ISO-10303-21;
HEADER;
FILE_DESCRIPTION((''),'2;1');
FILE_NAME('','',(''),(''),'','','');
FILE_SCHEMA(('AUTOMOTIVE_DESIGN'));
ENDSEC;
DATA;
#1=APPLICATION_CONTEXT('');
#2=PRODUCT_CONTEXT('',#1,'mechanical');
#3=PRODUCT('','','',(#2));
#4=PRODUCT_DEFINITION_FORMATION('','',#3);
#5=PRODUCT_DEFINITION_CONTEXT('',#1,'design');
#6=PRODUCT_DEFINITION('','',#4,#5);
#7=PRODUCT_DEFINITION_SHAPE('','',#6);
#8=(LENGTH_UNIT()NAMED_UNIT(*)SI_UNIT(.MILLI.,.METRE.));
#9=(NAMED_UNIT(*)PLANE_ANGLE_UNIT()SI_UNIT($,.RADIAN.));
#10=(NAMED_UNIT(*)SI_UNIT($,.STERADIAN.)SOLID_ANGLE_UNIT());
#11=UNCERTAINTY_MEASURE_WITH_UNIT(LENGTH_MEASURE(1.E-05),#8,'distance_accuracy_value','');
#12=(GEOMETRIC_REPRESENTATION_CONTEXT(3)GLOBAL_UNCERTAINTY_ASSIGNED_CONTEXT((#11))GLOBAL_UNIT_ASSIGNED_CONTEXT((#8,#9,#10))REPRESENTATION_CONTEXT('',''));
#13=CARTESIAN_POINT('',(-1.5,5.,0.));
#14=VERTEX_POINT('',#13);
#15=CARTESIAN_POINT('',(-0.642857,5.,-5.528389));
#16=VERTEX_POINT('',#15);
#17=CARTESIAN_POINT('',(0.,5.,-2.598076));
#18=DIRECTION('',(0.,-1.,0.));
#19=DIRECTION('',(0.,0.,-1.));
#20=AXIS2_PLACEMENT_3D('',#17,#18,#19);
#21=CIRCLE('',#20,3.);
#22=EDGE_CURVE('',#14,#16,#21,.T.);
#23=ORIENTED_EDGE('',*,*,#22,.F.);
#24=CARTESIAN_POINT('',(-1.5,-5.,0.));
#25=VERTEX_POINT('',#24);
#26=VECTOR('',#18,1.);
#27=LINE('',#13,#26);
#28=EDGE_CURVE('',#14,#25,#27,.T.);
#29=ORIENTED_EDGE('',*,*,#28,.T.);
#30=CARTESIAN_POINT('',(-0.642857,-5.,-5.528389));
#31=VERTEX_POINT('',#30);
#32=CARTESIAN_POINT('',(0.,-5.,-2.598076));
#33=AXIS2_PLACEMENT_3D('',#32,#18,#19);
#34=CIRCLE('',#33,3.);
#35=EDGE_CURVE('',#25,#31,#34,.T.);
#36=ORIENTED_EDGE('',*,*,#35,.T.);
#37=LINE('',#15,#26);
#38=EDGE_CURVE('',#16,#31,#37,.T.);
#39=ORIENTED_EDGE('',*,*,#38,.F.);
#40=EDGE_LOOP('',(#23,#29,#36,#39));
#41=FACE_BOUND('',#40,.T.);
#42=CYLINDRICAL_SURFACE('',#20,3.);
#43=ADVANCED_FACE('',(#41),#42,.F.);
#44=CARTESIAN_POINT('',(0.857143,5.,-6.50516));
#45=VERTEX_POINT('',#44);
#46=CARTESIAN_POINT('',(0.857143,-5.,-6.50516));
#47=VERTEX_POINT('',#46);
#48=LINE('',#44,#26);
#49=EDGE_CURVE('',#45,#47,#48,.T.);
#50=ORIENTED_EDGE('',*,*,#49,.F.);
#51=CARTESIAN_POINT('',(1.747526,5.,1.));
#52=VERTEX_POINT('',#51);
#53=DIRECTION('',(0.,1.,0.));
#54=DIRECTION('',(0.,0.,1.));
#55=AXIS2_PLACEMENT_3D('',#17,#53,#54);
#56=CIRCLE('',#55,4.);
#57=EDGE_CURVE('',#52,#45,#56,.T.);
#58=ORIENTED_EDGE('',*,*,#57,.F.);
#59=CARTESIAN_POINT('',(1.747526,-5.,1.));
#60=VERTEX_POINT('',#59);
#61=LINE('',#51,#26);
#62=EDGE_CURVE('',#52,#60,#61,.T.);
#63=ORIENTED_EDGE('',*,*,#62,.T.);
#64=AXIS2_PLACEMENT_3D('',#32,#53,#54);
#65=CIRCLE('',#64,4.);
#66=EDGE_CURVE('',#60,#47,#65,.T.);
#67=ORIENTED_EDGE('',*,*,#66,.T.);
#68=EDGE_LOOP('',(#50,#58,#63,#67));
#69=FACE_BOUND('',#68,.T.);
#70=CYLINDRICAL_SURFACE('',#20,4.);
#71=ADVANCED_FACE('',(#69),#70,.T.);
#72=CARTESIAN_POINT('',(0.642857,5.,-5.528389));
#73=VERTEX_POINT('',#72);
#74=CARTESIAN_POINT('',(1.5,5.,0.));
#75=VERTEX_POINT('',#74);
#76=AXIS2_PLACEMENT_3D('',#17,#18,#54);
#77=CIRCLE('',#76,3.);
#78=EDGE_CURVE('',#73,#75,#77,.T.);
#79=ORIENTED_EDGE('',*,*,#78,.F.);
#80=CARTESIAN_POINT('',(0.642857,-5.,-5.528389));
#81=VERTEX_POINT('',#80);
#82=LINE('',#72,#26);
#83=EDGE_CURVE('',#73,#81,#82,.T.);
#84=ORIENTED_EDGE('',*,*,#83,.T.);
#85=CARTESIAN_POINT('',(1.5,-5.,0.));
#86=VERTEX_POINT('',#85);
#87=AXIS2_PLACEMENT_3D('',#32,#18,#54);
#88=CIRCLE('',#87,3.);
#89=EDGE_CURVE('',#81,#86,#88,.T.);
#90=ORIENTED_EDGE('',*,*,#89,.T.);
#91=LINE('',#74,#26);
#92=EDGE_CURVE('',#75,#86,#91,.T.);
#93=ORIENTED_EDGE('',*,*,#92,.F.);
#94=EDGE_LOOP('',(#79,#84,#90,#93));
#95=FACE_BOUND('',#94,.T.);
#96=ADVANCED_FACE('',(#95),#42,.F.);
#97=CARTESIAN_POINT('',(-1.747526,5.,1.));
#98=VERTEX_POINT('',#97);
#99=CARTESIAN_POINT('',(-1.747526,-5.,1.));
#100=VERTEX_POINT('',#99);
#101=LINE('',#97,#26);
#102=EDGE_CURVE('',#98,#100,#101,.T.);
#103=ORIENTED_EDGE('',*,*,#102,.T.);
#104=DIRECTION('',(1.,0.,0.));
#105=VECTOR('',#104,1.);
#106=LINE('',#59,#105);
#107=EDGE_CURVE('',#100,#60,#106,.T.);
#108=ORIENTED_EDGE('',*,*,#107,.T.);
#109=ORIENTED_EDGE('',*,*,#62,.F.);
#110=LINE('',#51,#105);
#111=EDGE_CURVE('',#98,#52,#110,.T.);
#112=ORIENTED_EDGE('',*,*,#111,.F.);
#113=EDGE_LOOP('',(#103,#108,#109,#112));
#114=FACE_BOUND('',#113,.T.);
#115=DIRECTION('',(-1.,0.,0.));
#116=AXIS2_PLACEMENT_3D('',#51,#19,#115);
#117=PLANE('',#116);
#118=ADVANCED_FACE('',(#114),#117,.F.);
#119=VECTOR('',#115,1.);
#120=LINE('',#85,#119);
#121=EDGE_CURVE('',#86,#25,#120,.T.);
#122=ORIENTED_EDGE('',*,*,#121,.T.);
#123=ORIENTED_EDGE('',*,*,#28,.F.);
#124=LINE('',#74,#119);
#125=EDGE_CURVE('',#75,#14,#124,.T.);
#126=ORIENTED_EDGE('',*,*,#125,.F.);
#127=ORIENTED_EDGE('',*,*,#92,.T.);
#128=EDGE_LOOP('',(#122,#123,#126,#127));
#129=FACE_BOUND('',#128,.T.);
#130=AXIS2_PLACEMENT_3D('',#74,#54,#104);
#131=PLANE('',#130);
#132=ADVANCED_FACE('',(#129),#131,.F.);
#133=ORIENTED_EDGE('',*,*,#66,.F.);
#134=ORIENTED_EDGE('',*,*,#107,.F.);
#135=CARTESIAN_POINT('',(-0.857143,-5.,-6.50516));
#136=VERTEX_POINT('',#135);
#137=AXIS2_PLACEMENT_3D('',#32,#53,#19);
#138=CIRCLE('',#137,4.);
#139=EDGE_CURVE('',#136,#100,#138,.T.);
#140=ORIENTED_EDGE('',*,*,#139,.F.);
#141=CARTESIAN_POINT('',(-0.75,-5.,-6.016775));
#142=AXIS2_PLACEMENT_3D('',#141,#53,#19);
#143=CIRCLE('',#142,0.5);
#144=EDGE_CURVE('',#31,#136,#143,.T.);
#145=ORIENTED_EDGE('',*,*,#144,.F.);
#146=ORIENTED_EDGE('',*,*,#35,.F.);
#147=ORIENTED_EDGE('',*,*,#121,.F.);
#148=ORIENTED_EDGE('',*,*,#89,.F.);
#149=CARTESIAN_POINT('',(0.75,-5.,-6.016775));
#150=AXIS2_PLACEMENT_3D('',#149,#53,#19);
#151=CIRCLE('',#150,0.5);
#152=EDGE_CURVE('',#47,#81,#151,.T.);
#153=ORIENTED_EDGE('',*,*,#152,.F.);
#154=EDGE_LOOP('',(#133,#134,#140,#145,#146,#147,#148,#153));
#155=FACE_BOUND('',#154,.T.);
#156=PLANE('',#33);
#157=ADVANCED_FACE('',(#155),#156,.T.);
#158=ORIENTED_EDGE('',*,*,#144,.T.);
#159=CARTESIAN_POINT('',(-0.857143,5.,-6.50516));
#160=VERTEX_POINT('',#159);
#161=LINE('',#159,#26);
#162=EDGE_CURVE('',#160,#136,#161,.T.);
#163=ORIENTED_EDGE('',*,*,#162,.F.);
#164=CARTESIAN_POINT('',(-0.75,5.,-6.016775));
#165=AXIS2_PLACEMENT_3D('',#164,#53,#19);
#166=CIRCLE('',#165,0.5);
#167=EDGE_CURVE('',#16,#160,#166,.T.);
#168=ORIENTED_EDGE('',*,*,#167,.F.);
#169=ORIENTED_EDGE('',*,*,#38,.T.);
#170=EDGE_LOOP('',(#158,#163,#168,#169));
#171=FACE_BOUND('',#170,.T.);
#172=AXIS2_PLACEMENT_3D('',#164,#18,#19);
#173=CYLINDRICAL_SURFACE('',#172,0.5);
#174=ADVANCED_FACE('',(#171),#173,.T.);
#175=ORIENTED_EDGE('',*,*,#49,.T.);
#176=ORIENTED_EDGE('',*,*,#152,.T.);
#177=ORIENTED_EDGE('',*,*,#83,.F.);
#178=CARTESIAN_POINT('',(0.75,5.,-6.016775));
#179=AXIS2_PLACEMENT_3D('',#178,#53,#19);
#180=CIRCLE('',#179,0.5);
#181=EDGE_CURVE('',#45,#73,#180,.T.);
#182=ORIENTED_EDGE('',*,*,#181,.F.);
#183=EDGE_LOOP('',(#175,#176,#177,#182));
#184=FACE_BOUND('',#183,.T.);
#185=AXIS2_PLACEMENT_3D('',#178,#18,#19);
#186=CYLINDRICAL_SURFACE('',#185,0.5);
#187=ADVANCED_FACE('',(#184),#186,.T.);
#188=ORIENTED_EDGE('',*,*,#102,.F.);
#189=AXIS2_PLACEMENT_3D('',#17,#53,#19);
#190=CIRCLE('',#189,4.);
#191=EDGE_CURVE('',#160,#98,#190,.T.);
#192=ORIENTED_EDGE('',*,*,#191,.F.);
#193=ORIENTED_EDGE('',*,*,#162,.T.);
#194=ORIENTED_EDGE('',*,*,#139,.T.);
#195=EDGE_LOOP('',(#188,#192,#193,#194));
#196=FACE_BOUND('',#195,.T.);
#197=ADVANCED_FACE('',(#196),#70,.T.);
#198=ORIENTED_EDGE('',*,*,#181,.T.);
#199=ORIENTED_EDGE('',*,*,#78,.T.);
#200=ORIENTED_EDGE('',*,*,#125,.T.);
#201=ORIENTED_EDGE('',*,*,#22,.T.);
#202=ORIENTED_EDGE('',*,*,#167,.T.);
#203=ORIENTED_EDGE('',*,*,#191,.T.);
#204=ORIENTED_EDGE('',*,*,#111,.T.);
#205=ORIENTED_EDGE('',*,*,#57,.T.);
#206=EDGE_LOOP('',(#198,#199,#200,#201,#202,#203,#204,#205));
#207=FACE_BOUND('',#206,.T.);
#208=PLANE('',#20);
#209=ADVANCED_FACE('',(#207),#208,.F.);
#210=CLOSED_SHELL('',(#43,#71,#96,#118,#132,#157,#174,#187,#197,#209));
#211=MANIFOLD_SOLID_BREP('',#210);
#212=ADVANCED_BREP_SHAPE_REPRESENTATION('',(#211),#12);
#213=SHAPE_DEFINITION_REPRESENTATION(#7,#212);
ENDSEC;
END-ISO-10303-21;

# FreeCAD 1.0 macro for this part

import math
import FreeCAD as App
import Part
import Sketcher
from FreeCAD import Vector
Q = App.Units.Quantity

doc = App.newDocument("Part")
body = doc.addObject("PartDesign::Body", "Body")

sketch1 = doc.addObject("Sketcher::SketchObject", "Sketch")
body.addObject(sketch1)
sketch1.AttachmentSupport = (doc.XZ_Plane, [""])
sketch1.MapMode = "FlatFace"
sketch1.addGeometry(Part.LineSegment(Vector(1.5, 0, 0), Vector(-1.5, 0, 0)), False)
sketch1.addGeometry(Part.ArcOfCircle(Part.Circle(Vector(0, -2.6, 0), Vector(0, 0, 1), 3), math.radians(120), math.radians(258)), False)
sketch1.addGeometry(Part.ArcOfCircle(Part.Circle(Vector(-0.8, -6, 0), Vector(0, 0, 1), 0.5), math.radians(-102), math.radians(78)), False)
sketch1.addGeometry(Part.ArcOfCircle(Part.Circle(Vector(0, -2.6, 0), Vector(0, 0, 1), 4), math.radians(116), math.radians(258)), False)
sketch1.addGeometry(Part.LineSegment(Vector(-1.7, 1, 0), Vector(1.7, 1, 0)), False)
sketch1.addGeometry(Part.ArcOfCircle(Part.Circle(Vector(0, -2.6, 0), Vector(0, 0, 1), 4), math.radians(-78), math.radians(64)), False)
sketch1.addGeometry(Part.ArcOfCircle(Part.Circle(Vector(0.8, -6, 0), Vector(0, 0, 1), 0.5), math.radians(102), math.radians(282)), False)
sketch1.addGeometry(Part.ArcOfCircle(Part.Circle(Vector(0, -2.6, 0), Vector(0, 0, 1), 3), math.radians(-78), math.radians(60)), False)
sketch1.addConstraint(Sketcher.Constraint("Coincident", 0, 2, 1, 1))
sketch1.addConstraint(Sketcher.Constraint("Tangent", 1, 2, 2, 2))
sketch1.addConstraint(Sketcher.Constraint("Tangent", 2, 1, 3, 2))
sketch1.addConstraint(Sketcher.Constraint("Coincident", 3, 1, 4, 1))
sketch1.addConstraint(Sketcher.Constraint("Coincident", 4, 2, 5, 2))
sketch1.addConstraint(Sketcher.Constraint("Tangent", 5, 1, 6, 2))
sketch1.addConstraint(Sketcher.Constraint("Tangent", 6, 1, 7, 1))
sketch1.addConstraint(Sketcher.Constraint("Coincident", 7, 2, 0, 1))
sketch1.addConstraint(Sketcher.Constraint("Horizontal", 0))
sketch1.addConstraint(Sketcher.Constraint("Horizontal", 4))
sketch1.addConstraint(Sketcher.Constraint("Coincident", 3, 3, 1, 3))
sketch1.addConstraint(Sketcher.Constraint("Coincident", 5, 3, 1, 3))
sketch1.addConstraint(Sketcher.Constraint("Coincident", 7, 3, 1, 3))
sketch1.addConstraint(Sketcher.Constraint("Equal", 3, 5))
sketch1.addConstraint(Sketcher.Constraint("Equal", 2, 6))
sketch1.addConstraint(Sketcher.Constraint("Symmetric", 0, 2, 7, 2, -1, 1))
sketch1.addConstraint(Sketcher.Constraint("Horizontal", 2, 3, 6, 3))
sketch1.addConstraint(Sketcher.Constraint("Radius", 1, Q("3 mm")))
sketch1.addConstraint(Sketcher.Constraint("Radius", 3, Q("4 mm")))
sketch1.addConstraint(Sketcher.Constraint("DistanceX", 0, 2, 0, 1, Q("3 mm")))
sketch1.addConstraint(Sketcher.Constraint("DistanceY", -1, 1, 3, 1, Q("1 mm")))
sketch1.addConstraint(Sketcher.Constraint("DistanceX", 2, 3, 6, 3, Q("1.5 mm")))
pad1 = doc.addObject("PartDesign::Pad", "Pad")
body.addObject(pad1)
pad1.Profile = sketch1
pad1.Length = 10
pad1.Midplane = True

doc.recompute()
